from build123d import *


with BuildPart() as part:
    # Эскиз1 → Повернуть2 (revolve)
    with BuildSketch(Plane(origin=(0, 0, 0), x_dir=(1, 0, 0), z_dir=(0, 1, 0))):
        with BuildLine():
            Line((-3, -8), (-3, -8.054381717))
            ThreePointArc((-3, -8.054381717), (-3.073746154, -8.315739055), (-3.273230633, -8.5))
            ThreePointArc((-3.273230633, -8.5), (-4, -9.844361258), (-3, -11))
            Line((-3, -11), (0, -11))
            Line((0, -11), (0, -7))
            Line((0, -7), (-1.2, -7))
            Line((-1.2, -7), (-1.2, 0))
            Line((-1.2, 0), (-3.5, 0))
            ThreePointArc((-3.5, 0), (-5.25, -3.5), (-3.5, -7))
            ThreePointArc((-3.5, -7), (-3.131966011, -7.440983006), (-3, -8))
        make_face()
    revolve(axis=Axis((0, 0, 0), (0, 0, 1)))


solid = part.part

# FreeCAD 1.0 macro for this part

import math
import FreeCAD as App
import Part
import Sketcher

doc = App.newDocument("Part")
body = doc.addObject("PartDesign::Body", "Body")

sketch1 = body.newObject("Sketcher::SketchObject", "Sketch")
sketch1.AttachmentSupport = (doc.getObject("XZ_Plane"), [""])
sketch1.MapMode = "FlatFace"
sketch1.addGeometry([
    Part.LineSegment(App.Vector(-3, 8, 0), App.Vector(-3, 8.054382, 0)),
    Part.ArcOfCircle(Part.Circle(App.Vector(-3.5, 8.054382, 0), App.Vector(0, 0, 1), 0.5), math.radians(0), math.radians(63.029047)),
    Part.ArcOfCircle(Part.Circle(App.Vector(-2.663439, 9.698285, 0), App.Vector(0, 0, 1), 1.34452), math.radians(104.496494), math.radians(243.029047)),
    Part.LineSegment(App.Vector(-3, 11, 0), App.Vector(0, 11, 0)),
    Part.LineSegment(App.Vector(0, 11, 0), App.Vector(0, 7, 0)),
    Part.LineSegment(App.Vector(0, 7, 0), App.Vector(-1.2, 7, 0)),
    Part.LineSegment(App.Vector(-1.2, 7, 0), App.Vector(-1.2, 0, 0)),
    Part.LineSegment(App.Vector(-1.2, 0, 0), App.Vector(-3.5, 0, 0)),
    Part.ArcOfCircle(Part.Circle(App.Vector(-0.875, 3.5, 0), App.Vector(0, 0, 1), 4.375), math.radians(126.869898), math.radians(233.130102)),
    Part.ArcOfCircle(Part.Circle(App.Vector(-4.25, 8, 0), App.Vector(0, 0, 1), 1.25), math.radians(-53.130102), math.radians(0)),
], False)
sketch1.addConstraint([
    Sketcher.Constraint("Tangent", 0, 2, 1, 1),
    Sketcher.Constraint("Tangent", 1, 2, 2, 2),
    Sketcher.Constraint("Coincident", 2, 1, 3, 1),
    Sketcher.Constraint("Coincident", 3, 2, 4, 1),
    Sketcher.Constraint("Coincident", 4, 2, 5, 1),
    Sketcher.Constraint("Coincident", 5, 2, 6, 1),
    Sketcher.Constraint("Coincident", 6, 2, 7, 1),
    Sketcher.Constraint("Coincident", 7, 2, 8, 2),
    Sketcher.Constraint("Tangent", 8, 1, 9, 1),
    Sketcher.Constraint("Tangent", 9, 2, 0, 1),
    Sketcher.Constraint("Vertical", 0),
    Sketcher.Constraint("Horizontal", 3),
    Sketcher.Constraint("Vertical", 4),
    Sketcher.Constraint("Horizontal", 5),
    Sketcher.Constraint("Vertical", 6),
    Sketcher.Constraint("Horizontal", 7),
    Sketcher.Constraint("PointOnObject", 3, 2, -2),
    Sketcher.Constraint("PointOnObject", 6, 2, -1),
    Sketcher.Constraint("Horizontal", 5, 2, 8, 1),
    Sketcher.Constraint("Vertical", 0, 2, 2, 1),
    Sketcher.Constraint("Vertical", 1, 3, 7, 2),
    Sketcher.Constraint("Vertical", 7, 2, 8, 1),
    Sketcher.Constraint("Radius", 1, 0.5),
    Sketcher.Constraint("DistanceX", 3, 1, 3, 2, 3.0),
    Sketcher.Constraint("DistanceY", 4, 2, 4, 1, 4.0),
    Sketcher.Constraint("DistanceY", 6, 2, 6, 1, 7.0),
    Sketcher.Constraint("Radius", 9, 1.25),
    Sketcher.Constraint("DistanceX", 5, 2, 5, 1, 1.2),
    Sketcher.Constraint("DistanceY", 8, 3, 1, 2, 5.0),
    Sketcher.Constraint("Radius", 2, 1.34452),
])
revolution = body.newObject("PartDesign::Revolution", "Revolution")
revolution.Profile = sketch1
revolution.ReferenceAxis = (sketch1, ["V_Axis"])
revolution.Angle = 360

doc.recompute()
